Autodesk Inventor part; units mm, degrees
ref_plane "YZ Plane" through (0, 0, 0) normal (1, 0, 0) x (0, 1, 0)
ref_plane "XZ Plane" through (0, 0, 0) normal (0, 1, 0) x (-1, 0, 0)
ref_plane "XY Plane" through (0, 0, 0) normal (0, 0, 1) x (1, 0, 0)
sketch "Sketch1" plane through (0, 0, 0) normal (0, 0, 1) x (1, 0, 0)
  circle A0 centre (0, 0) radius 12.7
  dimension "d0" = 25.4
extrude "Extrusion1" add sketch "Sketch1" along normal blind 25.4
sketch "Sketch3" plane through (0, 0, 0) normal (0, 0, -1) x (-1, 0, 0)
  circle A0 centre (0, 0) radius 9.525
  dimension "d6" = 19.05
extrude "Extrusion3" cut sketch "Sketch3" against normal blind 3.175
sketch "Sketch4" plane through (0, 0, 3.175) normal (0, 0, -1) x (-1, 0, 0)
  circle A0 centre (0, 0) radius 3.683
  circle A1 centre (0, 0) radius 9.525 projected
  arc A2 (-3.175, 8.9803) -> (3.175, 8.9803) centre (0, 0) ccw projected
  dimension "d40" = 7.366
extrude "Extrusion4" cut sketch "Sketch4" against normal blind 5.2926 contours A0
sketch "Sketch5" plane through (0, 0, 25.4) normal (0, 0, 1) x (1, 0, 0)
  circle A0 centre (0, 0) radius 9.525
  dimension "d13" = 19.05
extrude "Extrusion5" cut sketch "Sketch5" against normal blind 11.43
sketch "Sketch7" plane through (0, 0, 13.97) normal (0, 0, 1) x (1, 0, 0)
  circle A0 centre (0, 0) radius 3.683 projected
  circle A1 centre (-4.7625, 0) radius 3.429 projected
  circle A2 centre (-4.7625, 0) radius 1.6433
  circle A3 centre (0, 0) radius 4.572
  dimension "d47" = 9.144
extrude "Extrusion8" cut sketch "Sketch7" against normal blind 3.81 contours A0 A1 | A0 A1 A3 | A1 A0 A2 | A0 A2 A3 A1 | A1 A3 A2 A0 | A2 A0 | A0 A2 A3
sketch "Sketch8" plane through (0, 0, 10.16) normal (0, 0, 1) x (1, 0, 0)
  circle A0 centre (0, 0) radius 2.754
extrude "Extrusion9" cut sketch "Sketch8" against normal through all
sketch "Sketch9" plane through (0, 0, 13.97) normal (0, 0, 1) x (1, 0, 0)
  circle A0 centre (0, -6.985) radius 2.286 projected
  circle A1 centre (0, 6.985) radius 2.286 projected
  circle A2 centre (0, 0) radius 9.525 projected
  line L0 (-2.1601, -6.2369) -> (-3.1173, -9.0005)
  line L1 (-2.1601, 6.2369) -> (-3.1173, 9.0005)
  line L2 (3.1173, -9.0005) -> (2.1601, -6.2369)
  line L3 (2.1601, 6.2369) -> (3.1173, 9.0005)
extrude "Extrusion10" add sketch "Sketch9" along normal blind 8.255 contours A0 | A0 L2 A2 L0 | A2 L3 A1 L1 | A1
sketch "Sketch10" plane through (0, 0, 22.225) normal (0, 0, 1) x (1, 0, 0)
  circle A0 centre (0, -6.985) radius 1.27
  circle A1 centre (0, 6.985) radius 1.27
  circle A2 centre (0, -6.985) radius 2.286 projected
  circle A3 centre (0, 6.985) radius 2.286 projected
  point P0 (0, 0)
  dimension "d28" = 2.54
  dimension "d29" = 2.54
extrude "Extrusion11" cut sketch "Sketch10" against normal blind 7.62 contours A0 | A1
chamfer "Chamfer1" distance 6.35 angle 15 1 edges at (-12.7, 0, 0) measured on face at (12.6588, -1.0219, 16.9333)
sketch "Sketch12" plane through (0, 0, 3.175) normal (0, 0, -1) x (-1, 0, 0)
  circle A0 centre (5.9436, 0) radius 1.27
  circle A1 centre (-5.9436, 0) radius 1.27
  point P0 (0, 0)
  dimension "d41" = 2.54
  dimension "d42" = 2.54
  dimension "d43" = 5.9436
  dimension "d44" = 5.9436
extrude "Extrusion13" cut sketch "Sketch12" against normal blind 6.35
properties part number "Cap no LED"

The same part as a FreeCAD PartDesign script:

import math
import FreeCAD as App
import Part
import Sketcher

V = App.Vector
Q = App.Units.Quantity


def edges_at(feature, points):
    """Names of the edges that pass closest to the given points."""
    edges = feature.Shape.Edges
    near = lambda p: min(range(len(edges)), key=lambda i: edges[i].distToShape(Part.Vertex(*p))[0])
    return sorted({f"Edge{near(p) + 1}" for p in points})

doc = App.newDocument("Part")
body = doc.addObject("PartDesign::Body", "Body")

sketch1 = body.newObject("Sketcher::SketchObject", "Sketch")
sketch1.AttachmentSupport = (doc.getObject("XY_Plane"), [""])
sketch1.MapMode = "FlatFace"
sketch1.addGeometry(Part.Circle(V(0, 0, 0), V(0, 0, 1), 13), False)
sketch1.addConstraint([
    Sketcher.Constraint("Coincident", 0, 3, -1, 1),
    Sketcher.Constraint("Diameter", 0, Q("1 in")),
])
pad1 = body.newObject("PartDesign::Pad", "Pad")
pad1.Profile = sketch1
pad1.Length = Q("1 in")

sketch2 = body.newObject("Sketcher::SketchObject", "Sketch001")
sketch2.AttachmentSupport = (doc.getObject("XY_Plane"), [""])
sketch2.MapMode = "FlatFace"
sketch2.addGeometry(Part.Circle(V(0, 0, 0), V(0, 0, 1), 10), False)
sketch2.addConstraint([
    Sketcher.Constraint("Coincident", 0, 3, -1, 1),
    Sketcher.Constraint("Diameter", 0, Q("0.75 in")),
])
pocket1 = body.newObject("PartDesign::Pocket", "Pocket")
pocket1.Profile = sketch2
pocket1.Length = Q("0.125 in")
pocket1.Reversed = True

sketch3 = body.newObject("Sketcher::SketchObject", "Sketch002")
sketch3.AttachmentSupport = (doc.getObject("XY_Plane"), [""])
sketch3.MapMode = "FlatFace"
sketch3.AttachmentOffset = App.Placement(V(0, 0, 0.125 * 25.4), App.Rotation())
sketch3.addGeometry(Part.Circle(V(0, 0, 0), V(0, 0, 1), 3.7), False)
sketch3.addConstraint([
    Sketcher.Constraint("Coincident", 0, 3, -1, 1),
    Sketcher.Constraint("Diameter", 0, Q("0.29 in")),
])
pocket2 = body.newObject("PartDesign::Pocket", "Pocket001")
pocket2.Profile = sketch3
pocket2.Length = 5.2926
pocket2.Reversed = True

sketch4 = body.newObject("Sketcher::SketchObject", "Sketch003")
sketch4.AttachmentSupport = (doc.getObject("XY_Plane"), [""])
sketch4.MapMode = "FlatFace"
sketch4.AttachmentOffset = App.Placement(V(0, 0, 1 * 25.4), App.Rotation())
sketch4.addGeometry(Part.Circle(V(0, 0, 0), V(0, 0, 1), 10), False)
sketch4.addConstraint([
    Sketcher.Constraint("Coincident", 0, 3, -1, 1),
    Sketcher.Constraint("Diameter", 0, Q("0.75 in")),
])
pocket3 = body.newObject("PartDesign::Pocket", "Pocket002")
pocket3.Profile = sketch4
pocket3.Length = Q("0.45 in")

sketch5 = body.newObject("Sketcher::SketchObject", "Sketch004")
sketch5.AttachmentSupport = (doc.getObject("XY_Plane"), [""])
sketch5.MapMode = "FlatFace"
sketch5.AttachmentOffset = App.Placement(V(0, 0, 0.55 * 25.4), App.Rotation())
sketch5.addGeometry(Part.Circle(V(0, 0, 0), V(0, 0, 1), 4.6), False)
sketch5.addConstraint([
    Sketcher.Constraint("Coincident", 0, 3, -1, 1),
    Sketcher.Constraint("Diameter", 0, Q("0.36 in")),
])
pocket4 = body.newObject("PartDesign::Pocket", "Pocket003")
pocket4.Profile = sketch5
pocket4.Length = Q("0.15 in")

sketch6 = body.newObject("Sketcher::SketchObject", "Sketch005")
sketch6.AttachmentSupport = (doc.getObject("XY_Plane"), [""])
sketch6.MapMode = "FlatFace"
sketch6.AttachmentOffset = App.Placement(V(0, 0, 0.4 * 25.4), App.Rotation())
sketch6.addGeometry(Part.Circle(V(0, 0, 0), V(0, 0, 1), 2.8), False)
sketch6.addConstraint([
    Sketcher.Constraint("Coincident", 0, 3, -1, 1),
    Sketcher.Constraint("Diameter", 0, Q("5.508 mm")),
])
pocket5 = body.newObject("PartDesign::Pocket", "Pocket004")
pocket5.Profile = sketch6
pocket5.Type = "ThroughAll"

sketch7 = body.newObject("Sketcher::SketchObject", "Sketch006")
sketch7.AttachmentSupport = (doc.getObject("XY_Plane"), [""])
sketch7.MapMode = "FlatFace"
sketch7.AttachmentOffset = App.Placement(V(0, 0, 0.55 * 25.4), App.Rotation())
sketch7.addGeometry([
    Part.ArcOfCircle(Part.Circle(V(0, -7, 0), V(0, 0, 1), 2.3), math.radians(19), math.radians(161)),
    Part.LineSegment(V(-2.2, -6.2, 0), V(-3.1, -9, 0)),
    Part.ArcOfCircle(Part.Circle(V(0, 0, 0), V(0, 0, 1), 9.5), math.radians(-109), math.radians(-71)),
    Part.LineSegment(V(3.1, -9, 0), V(2.2, -6.2, 0)),
    Part.ArcOfCircle(Part.Circle(V(0, 0, 0), V(0, 0, 1), 9.5), math.radians(71), math.radians(109)),
    Part.LineSegment(V(-3.1, 9, 0), V(-2.2, 6.2, 0)),
    Part.ArcOfCircle(Part.Circle(V(0, 7, 0), V(0, 0, 1), 2.3), math.radians(-161), math.radians(-19)),
    Part.LineSegment(V(2.2, 6.2, 0), V(3.1, 9, 0)),
], False)
sketch7.addConstraint([
    Sketcher.Constraint("Tangent", 0, 2, 1, 1),
    Sketcher.Constraint("Coincident", 1, 2, 2, 1),
    Sketcher.Constraint("Coincident", 2, 2, 3, 1),
    Sketcher.Constraint("Tangent", 3, 2, 0, 1),
    Sketcher.Constraint("Coincident", 4, 2, 5, 1),
    Sketcher.Constraint("Tangent", 5, 2, 6, 1),
    Sketcher.Constraint("Tangent", 6, 2, 7, 1),
    Sketcher.Constraint("Coincident", 7, 2, 4, 1),
    Sketcher.Constraint("Coincident", 2, 3, -1, 1),
    Sketcher.Constraint("Coincident", 4, 3, -1, 1),
    Sketcher.Constraint("Equal", 2, 4),
    Sketcher.Constraint("Equal", 0, 6),
    Sketcher.Constraint("Symmetric", 0, 3, 6, 3, -1, 1),
    Sketcher.Constraint("Symmetric", 0, 2, 3, 2, -2),
    Sketcher.Constraint("Parallel", 3, 5),
    Sketcher.Constraint("Parallel", 1, 7),
    Sketcher.Constraint("Radius", 0, Q("0.09 in")),
    Sketcher.Constraint("Radius", 2, Q("0.375 in")),
    Sketcher.Constraint("DistanceY", 0, 3, 6, 3, Q("0.55 in")),
    Sketcher.Constraint("DistanceY", 1, 2, 0, 2, Q("0.1088 in")),
])
pad2 = body.newObject("PartDesign::Pad", "Pad001")
pad2.Profile = sketch7
pad2.Length = Q("0.325 in")

sketch8 = body.newObject("Sketcher::SketchObject", "Sketch007")
sketch8.AttachmentSupport = (doc.getObject("XY_Plane"), [""])
sketch8.MapMode = "FlatFace"
sketch8.AttachmentOffset = App.Placement(V(0, 0, 0.875 * 25.4), App.Rotation())
sketch8.addGeometry([
    Part.Circle(V(0, -7, 0), V(0, 0, 1), 1.3),
    Part.Circle(V(0, 7, 0), V(0, 0, 1), 1.3),
], False)
sketch8.addConstraint([
    Sketcher.Constraint("Equal", 0, 1),
    Sketcher.Constraint("Symmetric", 0, 3, 1, 3, -1, 1),
    Sketcher.Constraint("PointOnObject", 0, 3, -2),
    Sketcher.Constraint("Diameter", 0, Q("0.1 in")),
    Sketcher.Constraint("DistanceY", 0, 3, 1, 3, Q("0.55 in")),
])
pocket6 = body.newObject("PartDesign::Pocket", "Pocket005")
pocket6.Profile = sketch8
pocket6.Length = Q("0.3 in")
doc.recompute()

chamfer = body.newObject("PartDesign::Chamfer", "Chamfer")
chamfer.Base = (pocket6, edges_at(pocket6, [(-12.7, 0, 0)]))
chamfer.ChamferType = "Distance and Angle"
chamfer.Size = Q("0.25 in")
chamfer.Angle = 15

sketch9 = body.newObject("Sketcher::SketchObject", "Sketch008")
sketch9.AttachmentSupport = (doc.getObject("XY_Plane"), [""])
sketch9.MapMode = "FlatFace"
sketch9.AttachmentOffset = App.Placement(V(0, 0, 0.125 * 25.4), App.Rotation())
sketch9.addGeometry([
    Part.Circle(V(-5.9, 0, 0), V(0, 0, 1), 1.3),
    Part.Circle(V(5.9, 0, 0), V(0, 0, 1), 1.3),
], False)
sketch9.addConstraint([
    Sketcher.Constraint("Equal", 0, 1),
    Sketcher.Constraint("Symmetric", 0, 3, 1, 3, -1, 1),
    Sketcher.Constraint("PointOnObject", 0, 3, -1),
    Sketcher.Constraint("Diameter", 0, Q("0.1 in")),
    Sketcher.Constraint("DistanceX", 0, 3, -1, 1, Q("0.234 in")),
])
pocket7 = body.newObject("PartDesign::Pocket", "Pocket006")
pocket7.Profile = sketch9
pocket7.Length = Q("0.25 in")
pocket7.Reversed = True

doc.recompute()
